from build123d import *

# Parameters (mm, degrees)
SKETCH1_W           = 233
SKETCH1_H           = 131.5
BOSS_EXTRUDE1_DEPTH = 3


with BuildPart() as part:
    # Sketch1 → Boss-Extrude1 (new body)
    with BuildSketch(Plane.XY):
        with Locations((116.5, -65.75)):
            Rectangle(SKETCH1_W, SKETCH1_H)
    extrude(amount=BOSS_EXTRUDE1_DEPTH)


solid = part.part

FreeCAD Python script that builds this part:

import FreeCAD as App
import Part
import Sketcher

V = App.Vector

doc = App.newDocument("Part")
body = doc.addObject("PartDesign::Body", "Body")

# Sketch on XY plane
sketch1 = doc.addObject("Sketcher::SketchObject", "Sketch")
body.addObject(sketch1)
sketch1.AttachmentSupport = (doc.XY_Plane, [""])
sketch1.MapMode = "FlatFace"
sketch1.addGeometry([
    Part.LineSegment(V(0, 0, 0), V(0, -132, 0)),
    Part.LineSegment(V(0, -132, 0), V(233, -132, 0)),
    Part.LineSegment(V(233, -132, 0), V(233, 0, 0)),
    Part.LineSegment(V(233, 0, 0), V(0, 0, 0)),
], False)
sketch1.addConstraint([
    Sketcher.Constraint("Coincident", 0, 2, 1, 1),
    Sketcher.Constraint("Coincident", 1, 2, 2, 1),
    Sketcher.Constraint("Coincident", 2, 2, 3, 1),
    Sketcher.Constraint("Coincident", 3, 2, 0, 1),
    Sketcher.Constraint("Vertical", 0),
    Sketcher.Constraint("Horizontal", 1),
    Sketcher.Constraint("Vertical", 2),
    Sketcher.Constraint("Horizontal", 3),
    Sketcher.Constraint("Coincident", 3, 2, -1, 1),
    Sketcher.Constraint("DistanceX", 1, 1, 1, 2, 233.0),
    Sketcher.Constraint("DistanceY", 0, 2, 0, 1, 131.5),
])
pad1 = doc.addObject("PartDesign::Pad", "Pad")
body.addObject(pad1)
pad1.Profile = sketch1
pad1.Length = 3

doc.recompute()
